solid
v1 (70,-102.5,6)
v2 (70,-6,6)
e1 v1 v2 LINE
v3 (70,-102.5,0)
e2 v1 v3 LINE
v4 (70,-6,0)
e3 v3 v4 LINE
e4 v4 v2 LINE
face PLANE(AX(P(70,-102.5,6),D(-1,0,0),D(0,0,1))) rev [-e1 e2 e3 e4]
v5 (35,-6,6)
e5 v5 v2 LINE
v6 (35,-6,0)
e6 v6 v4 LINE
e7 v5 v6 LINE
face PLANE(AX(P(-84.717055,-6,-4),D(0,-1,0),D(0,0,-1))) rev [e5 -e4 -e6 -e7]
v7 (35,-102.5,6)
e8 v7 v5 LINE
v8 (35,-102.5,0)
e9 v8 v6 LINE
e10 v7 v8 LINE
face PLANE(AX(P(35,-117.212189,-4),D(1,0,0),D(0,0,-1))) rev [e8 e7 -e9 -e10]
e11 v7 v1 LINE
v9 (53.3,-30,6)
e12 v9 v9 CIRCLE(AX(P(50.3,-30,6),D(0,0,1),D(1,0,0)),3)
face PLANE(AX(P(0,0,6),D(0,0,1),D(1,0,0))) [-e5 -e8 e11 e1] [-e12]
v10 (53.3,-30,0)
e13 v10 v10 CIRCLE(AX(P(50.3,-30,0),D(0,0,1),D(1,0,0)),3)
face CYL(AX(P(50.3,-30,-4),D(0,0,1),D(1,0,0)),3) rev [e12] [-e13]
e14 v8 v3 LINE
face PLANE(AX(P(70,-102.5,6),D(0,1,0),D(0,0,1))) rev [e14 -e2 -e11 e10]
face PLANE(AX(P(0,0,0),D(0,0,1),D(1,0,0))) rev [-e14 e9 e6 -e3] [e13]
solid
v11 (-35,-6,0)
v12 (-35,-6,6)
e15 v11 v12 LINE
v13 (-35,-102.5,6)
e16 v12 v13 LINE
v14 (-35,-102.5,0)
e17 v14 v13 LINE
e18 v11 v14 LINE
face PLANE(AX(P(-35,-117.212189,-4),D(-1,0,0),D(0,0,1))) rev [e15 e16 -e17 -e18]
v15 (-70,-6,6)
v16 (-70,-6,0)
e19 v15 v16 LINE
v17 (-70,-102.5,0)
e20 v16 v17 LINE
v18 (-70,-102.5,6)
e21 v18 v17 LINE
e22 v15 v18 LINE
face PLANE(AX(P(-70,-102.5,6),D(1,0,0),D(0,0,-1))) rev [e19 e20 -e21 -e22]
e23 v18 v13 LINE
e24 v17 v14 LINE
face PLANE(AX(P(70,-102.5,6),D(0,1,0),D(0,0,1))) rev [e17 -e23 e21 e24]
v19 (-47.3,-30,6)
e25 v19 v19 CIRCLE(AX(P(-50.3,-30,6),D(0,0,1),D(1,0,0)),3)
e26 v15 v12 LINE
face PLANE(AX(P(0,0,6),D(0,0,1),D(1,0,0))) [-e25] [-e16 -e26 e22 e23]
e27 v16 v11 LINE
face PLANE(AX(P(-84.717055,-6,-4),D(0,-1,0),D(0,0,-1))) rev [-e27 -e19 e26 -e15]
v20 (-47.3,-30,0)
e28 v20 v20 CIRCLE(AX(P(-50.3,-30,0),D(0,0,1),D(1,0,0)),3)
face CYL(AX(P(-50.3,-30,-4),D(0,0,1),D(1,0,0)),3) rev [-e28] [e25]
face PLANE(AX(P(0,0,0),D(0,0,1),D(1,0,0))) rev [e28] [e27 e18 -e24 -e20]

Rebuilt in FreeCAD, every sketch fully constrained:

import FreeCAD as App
import Part
import Sketcher
from FreeCAD import Vector
Q = App.Units.Quantity


def edges_at(feature, points):
    """Names of the edges that pass closest to the given points."""
    edges = feature.Shape.Edges
    near = lambda p: min(range(len(edges)), key=lambda i: edges[i].distToShape(Part.Vertex(*p))[0])
    return sorted({f"Edge{near(p) + 1}" for p in points})


def add_polygon(sketch, points):
    """Adds a closed chain of lines whose ends are joined by coincident constraints."""
    first, n = sketch.GeometryCount, len(points)
    for a, b in zip(points, points[1:] + points[:1]):
        sketch.addGeometry(Part.LineSegment(App.Vector(*a, 0), App.Vector(*b, 0)), False)
    for i in range(n):
        sketch.addConstraint(Sketcher.Constraint("Coincident", first + i, 2, first + (i + 1) % n, 1))

doc = App.newDocument("Part")
body = doc.addObject("PartDesign::Body", "Body")
body.AllowCompound = True

sketch1 = body.newObject("Sketcher::SketchObject", "Sketch")
sketch1.AttachmentSupport = (doc.getObject("XY_Plane"), [""])
sketch1.MapMode = "FlatFace"
add_polygon(sketch1, [(-70, 62), (-70, -102), (70, -102), (70, 62)])
sketch1.addConstraint([
    Sketcher.Constraint("Vertical", 0),
    Sketcher.Constraint("Horizontal", 1),
    Sketcher.Constraint("Vertical", 2),
    Sketcher.Constraint("Horizontal", 3),
    Sketcher.Constraint("DistanceX", 1, 1, 1, 2, Q("140 mm")),
    Sketcher.Constraint("DistanceY", 0, 2, 0, 1, Q("165 mm")),
    Sketcher.Constraint("DistanceX", 0, 2, -1, 1, Q("70 mm")),
    Sketcher.Constraint("DistanceY", 0, 2, -1, 1, Q("102.5 mm")),
])
pad1 = body.newObject("PartDesign::Pad", "Pad")
pad1.Profile = sketch1
pad1.Length = 6
doc.recompute()

fillet = body.newObject("PartDesign::Fillet", "Fillet")
fillet.Base = (pad1, edges_at(pad1, [(-70, 62.5, 3), (70, 62.5, 3)]))
fillet.Radius = 10

sketch2 = body.newObject("Sketcher::SketchObject", "Sketch001")
sketch2.AttachmentSupport = (doc.getObject("XY_Plane"), [""])
sketch2.MapMode = "FlatFace"
sketch2.AttachmentOffset = App.Placement(Vector(0, 0, 6), App.Rotation())
sketch2.addGeometry([
    Part.Circle(Vector(50.3, 30, 0), Vector(0, 0, 1), 3),
    Part.Circle(Vector(50.3, -30, 0), Vector(0, 0, 1), 3),
    Part.Circle(Vector(-50.3, 30, 0), Vector(0, 0, 1), 3),
    Part.Circle(Vector(-50.3, -30, 0), Vector(0, 0, 1), 3),
], False)
sketch2.addConstraint([
    Sketcher.Constraint("Equal", 0, 1),
    Sketcher.Constraint("Equal", 1, 2),
    Sketcher.Constraint("Equal", 2, 3),
    Sketcher.Constraint("Symmetric", 1, 3, 2, 3, -1, 1),
    Sketcher.Constraint("Symmetric", 0, 3, 3, 3, -1, 1),
    Sketcher.Constraint("Symmetric", 0, 3, 2, 3, -2),
    Sketcher.Constraint("Diameter", 0, Q("6 mm")),
    Sketcher.Constraint("DistanceY", -1, 1, 0, 3, Q("30 mm")),
    Sketcher.Constraint("DistanceX", -1, 1, 0, 3, Q("50.3 mm")),
])
pocket1 = body.newObject("PartDesign::Pocket", "Pocket")
pocket1.Profile = sketch2
pocket1.Length = 10

sketch3 = body.newObject("Sketcher::SketchObject", "Sketch002")
sketch3.AttachmentSupport = (doc.getObject("XY_Plane"), [""])
sketch3.MapMode = "FlatFace"
sketch3.AttachmentOffset = App.Placement(Vector(0, 0, 6), App.Rotation())
add_polygon(sketch3, [(-35, 79), (-35, -117), (35, -117), (35, 79)])
sketch3.addConstraint([
    Sketcher.Constraint("Vertical", 0),
    Sketcher.Constraint("Horizontal", 1),
    Sketcher.Constraint("Vertical", 2),
    Sketcher.Constraint("Horizontal", 3),
    Sketcher.Constraint("DistanceX", 1, 1, 1, 2, Q("70 mm")),
    Sketcher.Constraint("DistanceX", 0, 2, -1, 1, Q("35 mm")),
    Sketcher.Constraint("DistanceY", 0, 2, 0, 1, Q("195.841362 mm")),
    Sketcher.Constraint("DistanceY", 0, 2, -1, 1, Q("117.212189 mm")),
])
pocket2 = body.newObject("PartDesign::Pocket", "Pocket001")
pocket2.Profile = sketch3
pocket2.Length = 10

sketch4 = body.newObject("Sketcher::SketchObject", "Sketch003")
sketch4.AttachmentSupport = (doc.getObject("XY_Plane"), [""])
sketch4.MapMode = "FlatFace"
sketch4.AttachmentOffset = App.Placement(Vector(0, 0, 6), App.Rotation())
add_polygon(sketch4, [(-85, 68), (-85, -6), (88, -6), (88, 68)])
sketch4.addConstraint([
    Sketcher.Constraint("Vertical", 0),
    Sketcher.Constraint("Horizontal", 1),
    Sketcher.Constraint("Vertical", 2),
    Sketcher.Constraint("Horizontal", 3),
    Sketcher.Constraint("DistanceY", 0, 2, -1, 1, Q("6 mm")),
    Sketcher.Constraint("DistanceX", 1, 1, 1, 2, Q("172.774827 mm")),
    Sketcher.Constraint("DistanceY", 0, 2, 0, 1, Q("74.169235 mm")),
    Sketcher.Constraint("DistanceX", 0, 2, -1, 1, Q("84.717055 mm")),
])
pocket3 = body.newObject("PartDesign::Pocket", "Pocket002")
pocket3.Profile = sketch4
pocket3.Length = 10

doc.recompute()
